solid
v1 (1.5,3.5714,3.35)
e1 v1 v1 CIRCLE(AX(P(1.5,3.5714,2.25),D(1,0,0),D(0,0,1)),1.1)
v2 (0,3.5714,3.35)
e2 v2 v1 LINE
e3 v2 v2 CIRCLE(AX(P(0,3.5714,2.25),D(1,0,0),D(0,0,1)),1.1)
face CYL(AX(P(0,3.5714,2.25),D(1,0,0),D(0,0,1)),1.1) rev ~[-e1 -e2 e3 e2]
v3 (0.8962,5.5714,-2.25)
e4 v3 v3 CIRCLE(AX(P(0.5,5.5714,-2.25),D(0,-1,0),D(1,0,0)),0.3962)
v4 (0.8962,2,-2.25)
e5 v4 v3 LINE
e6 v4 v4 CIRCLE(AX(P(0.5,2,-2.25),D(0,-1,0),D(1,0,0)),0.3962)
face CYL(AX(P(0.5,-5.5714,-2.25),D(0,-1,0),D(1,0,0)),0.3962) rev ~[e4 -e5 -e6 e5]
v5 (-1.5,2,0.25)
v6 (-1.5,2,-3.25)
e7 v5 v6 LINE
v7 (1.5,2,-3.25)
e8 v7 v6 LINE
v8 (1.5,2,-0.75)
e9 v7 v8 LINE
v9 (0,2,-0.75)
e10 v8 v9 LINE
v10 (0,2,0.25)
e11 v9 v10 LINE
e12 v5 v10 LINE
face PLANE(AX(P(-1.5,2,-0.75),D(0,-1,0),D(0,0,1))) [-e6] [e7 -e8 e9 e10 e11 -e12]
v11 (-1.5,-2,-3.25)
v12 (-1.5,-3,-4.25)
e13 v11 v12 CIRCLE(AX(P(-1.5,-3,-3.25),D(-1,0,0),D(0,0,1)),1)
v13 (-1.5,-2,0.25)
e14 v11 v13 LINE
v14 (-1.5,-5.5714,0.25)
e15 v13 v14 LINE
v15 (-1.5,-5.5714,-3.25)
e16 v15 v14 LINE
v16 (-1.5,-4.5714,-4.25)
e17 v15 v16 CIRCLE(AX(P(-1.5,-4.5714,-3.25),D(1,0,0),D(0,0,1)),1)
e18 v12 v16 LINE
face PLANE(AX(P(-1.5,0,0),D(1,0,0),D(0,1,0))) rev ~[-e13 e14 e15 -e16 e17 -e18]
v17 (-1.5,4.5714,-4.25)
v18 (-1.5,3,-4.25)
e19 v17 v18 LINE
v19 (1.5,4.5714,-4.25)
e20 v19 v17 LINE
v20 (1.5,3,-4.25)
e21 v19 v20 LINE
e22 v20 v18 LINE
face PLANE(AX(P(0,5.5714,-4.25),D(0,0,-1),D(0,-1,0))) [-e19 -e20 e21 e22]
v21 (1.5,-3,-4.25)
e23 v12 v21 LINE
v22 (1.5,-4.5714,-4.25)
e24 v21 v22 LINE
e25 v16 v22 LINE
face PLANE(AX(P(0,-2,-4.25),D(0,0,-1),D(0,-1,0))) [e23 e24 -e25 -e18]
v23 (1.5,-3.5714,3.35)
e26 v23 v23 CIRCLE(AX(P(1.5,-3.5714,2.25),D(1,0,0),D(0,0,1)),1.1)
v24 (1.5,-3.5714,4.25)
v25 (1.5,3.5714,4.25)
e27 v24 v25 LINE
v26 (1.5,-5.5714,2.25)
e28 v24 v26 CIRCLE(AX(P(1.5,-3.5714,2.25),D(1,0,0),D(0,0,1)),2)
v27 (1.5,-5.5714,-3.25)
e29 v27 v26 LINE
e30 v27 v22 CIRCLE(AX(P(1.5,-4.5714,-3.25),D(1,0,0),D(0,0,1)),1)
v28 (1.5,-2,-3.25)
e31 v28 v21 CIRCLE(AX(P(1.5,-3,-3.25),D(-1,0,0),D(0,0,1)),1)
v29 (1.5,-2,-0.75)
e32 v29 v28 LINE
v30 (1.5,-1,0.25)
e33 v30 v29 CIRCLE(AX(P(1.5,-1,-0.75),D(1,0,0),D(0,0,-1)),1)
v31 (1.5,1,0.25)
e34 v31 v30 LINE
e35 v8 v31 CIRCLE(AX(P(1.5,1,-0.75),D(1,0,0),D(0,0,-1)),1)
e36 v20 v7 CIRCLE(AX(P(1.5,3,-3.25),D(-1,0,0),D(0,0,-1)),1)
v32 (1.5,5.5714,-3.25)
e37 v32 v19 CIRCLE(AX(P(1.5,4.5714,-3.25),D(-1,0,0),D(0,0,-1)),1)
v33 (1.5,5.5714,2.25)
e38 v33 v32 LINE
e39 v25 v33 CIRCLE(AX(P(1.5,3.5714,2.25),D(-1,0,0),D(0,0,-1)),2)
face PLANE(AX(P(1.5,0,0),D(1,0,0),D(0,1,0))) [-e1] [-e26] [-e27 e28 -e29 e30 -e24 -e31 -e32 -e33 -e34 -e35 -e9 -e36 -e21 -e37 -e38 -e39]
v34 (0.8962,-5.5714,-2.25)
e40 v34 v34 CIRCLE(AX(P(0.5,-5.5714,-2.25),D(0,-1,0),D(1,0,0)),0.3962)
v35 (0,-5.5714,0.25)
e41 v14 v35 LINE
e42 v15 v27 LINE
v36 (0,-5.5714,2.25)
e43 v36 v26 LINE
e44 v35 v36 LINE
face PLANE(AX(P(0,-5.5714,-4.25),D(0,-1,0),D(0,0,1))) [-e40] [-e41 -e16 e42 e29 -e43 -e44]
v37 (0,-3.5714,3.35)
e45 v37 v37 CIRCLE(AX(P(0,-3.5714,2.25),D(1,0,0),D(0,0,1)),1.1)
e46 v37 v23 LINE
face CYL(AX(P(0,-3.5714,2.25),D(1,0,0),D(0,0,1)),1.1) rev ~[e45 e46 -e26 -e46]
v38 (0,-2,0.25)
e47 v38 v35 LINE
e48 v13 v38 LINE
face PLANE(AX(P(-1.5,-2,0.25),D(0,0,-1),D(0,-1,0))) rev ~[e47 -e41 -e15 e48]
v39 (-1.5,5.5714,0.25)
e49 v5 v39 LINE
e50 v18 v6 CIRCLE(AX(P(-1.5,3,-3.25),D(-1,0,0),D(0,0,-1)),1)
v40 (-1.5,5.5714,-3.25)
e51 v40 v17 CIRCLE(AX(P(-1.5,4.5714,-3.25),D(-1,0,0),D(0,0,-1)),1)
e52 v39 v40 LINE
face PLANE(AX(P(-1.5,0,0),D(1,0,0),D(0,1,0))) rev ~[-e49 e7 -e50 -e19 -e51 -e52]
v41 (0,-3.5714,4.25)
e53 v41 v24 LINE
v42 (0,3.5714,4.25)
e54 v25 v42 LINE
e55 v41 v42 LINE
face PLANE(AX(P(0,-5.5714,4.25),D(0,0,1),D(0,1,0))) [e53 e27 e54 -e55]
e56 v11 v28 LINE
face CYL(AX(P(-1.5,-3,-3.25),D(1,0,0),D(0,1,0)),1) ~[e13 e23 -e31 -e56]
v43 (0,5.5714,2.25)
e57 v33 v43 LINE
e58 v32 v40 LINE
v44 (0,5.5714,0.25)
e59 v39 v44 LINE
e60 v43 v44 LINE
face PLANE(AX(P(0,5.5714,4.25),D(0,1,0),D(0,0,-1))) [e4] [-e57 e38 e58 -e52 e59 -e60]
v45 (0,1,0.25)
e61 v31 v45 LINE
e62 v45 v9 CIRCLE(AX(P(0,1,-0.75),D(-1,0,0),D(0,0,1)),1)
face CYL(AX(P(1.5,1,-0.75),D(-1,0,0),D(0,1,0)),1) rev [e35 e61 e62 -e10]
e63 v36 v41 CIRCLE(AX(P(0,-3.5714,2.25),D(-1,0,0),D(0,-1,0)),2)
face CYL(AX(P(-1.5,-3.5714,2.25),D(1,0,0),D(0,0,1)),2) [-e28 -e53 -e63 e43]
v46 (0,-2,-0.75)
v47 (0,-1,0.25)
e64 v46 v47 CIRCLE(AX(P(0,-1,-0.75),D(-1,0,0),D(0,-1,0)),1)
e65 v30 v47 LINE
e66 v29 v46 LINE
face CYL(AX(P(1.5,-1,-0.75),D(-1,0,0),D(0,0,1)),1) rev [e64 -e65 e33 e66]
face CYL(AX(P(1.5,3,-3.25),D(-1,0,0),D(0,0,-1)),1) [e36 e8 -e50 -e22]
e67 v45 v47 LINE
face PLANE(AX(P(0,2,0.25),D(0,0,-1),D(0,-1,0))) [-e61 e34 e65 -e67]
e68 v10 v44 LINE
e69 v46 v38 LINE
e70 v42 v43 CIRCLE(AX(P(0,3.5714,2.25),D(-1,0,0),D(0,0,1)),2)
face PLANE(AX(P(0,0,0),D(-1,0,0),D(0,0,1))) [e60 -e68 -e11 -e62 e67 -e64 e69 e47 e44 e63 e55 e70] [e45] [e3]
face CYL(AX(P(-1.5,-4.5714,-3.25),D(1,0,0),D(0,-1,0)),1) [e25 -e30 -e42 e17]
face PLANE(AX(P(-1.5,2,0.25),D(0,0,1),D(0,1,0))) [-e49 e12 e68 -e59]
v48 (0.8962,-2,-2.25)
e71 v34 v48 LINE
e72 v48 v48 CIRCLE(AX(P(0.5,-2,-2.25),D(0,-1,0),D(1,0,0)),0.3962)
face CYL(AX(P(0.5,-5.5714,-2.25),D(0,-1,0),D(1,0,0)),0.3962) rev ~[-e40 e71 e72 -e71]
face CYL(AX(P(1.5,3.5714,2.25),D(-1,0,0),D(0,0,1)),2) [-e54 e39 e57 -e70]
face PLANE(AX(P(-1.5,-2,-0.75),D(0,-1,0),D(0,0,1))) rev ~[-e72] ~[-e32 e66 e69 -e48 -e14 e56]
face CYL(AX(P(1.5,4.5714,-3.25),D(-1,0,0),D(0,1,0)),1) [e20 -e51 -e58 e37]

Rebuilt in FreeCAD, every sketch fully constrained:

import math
import FreeCAD as App
import Part
import Sketcher

V = App.Vector
Q = App.Units.Quantity


def edges_at(feature, points):
    """Names of the edges that pass closest to the given points."""
    edges = feature.Shape.Edges
    near = lambda p: min(range(len(edges)), key=lambda i: edges[i].distToShape(Part.Vertex(*p))[0])
    return sorted({f"Edge{near(p) + 1}" for p in points})


def add_polygon(sketch, points):
    """Adds a closed chain of lines whose ends are joined by coincident constraints."""
    first, n = sketch.GeometryCount, len(points)
    for a, b in zip(points, points[1:] + points[:1]):
        sketch.addGeometry(Part.LineSegment(App.Vector(*a, 0), App.Vector(*b, 0)), False)
    for i in range(n):
        sketch.addConstraint(Sketcher.Constraint("Coincident", first + i, 2, first + (i + 1) % n, 1))

doc = App.newDocument("Part")
body = doc.addObject("PartDesign::Body", "Body")

sketch1 = body.newObject("Sketcher::SketchObject", "Sketch")
sketch1.AttachmentSupport = (doc.getObject("YZ_Plane"), [""])
sketch1.MapMode = "FlatFace"
add_polygon(sketch1, [(5.6, 4.2), (-5.6, 4.2), (-5.6, -4.2), (-2, -4.2), (-2, 0.2), (2, 0.2), (2, -4.2), (5.6, -4.2)])
sketch1.addConstraint(Sketcher.Constraint("Horizontal", 0))
sketch1.addConstraint(Sketcher.Constraint("Vertical", 1))
sketch1.addConstraint(Sketcher.Constraint("Horizontal", 2))
sketch1.addConstraint(Sketcher.Constraint("Vertical", 3))
sketch1.addConstraint(Sketcher.Constraint("Horizontal", 4))
sketch1.addConstraint(Sketcher.Constraint("Vertical", 5))
sketch1.addConstraint(Sketcher.Constraint("Horizontal", 6))
sketch1.addConstraint(Sketcher.Constraint("Vertical", 7))
sketch1.addConstraint(Sketcher.Constraint("Symmetric", 0, 2, 6, 2, -1, 1))
sketch1.addConstraint(Sketcher.Constraint("Symmetric", 2, 2, 5, 2, -2))
sketch1.addConstraint(Sketcher.Constraint("DistanceX", 4, 1, 4, 2, Q("4 mm")))
sketch1.addConstraint(Sketcher.Constraint("DistanceY", 3, 1, 3, 2, Q("4.5 mm")))
sketch1.addConstraint(Sketcher.Constraint("DistanceY", 3, 2, 0, 2, Q("4 mm")))
sketch1.addConstraint(Sketcher.Constraint("DistanceX", 0, 2, 0, 1, Q("11.1428 mm")))
pad1 = body.newObject("PartDesign::Pad", "Pad")
pad1.Profile = sketch1
pad1.Length = 3
pad1.Midplane = True

sketch2 = body.newObject("Sketcher::SketchObject", "Sketch001")
sketch2.AttachmentSupport = (doc.getObject("XZ_Plane"), [""])
sketch2.MapMode = "FlatFace"
sketch2.AttachmentOffset = App.Placement(V(0, 0, 5.5714), App.Rotation())
sketch2.addGeometry(Part.Circle(V(0.5, -2.25, 0), V(0, 0, 1), 0.4), False)
sketch2.addConstraint(Sketcher.Constraint("Diameter", 0, Q("0.7924 mm")))
sketch2.addConstraint(Sketcher.Constraint("DistanceX", -1, 1, 0, 3, Q("0.5 mm")))
sketch2.addConstraint(Sketcher.Constraint("DistanceY", 0, 3, -1, 1, Q("2.25 mm")))
pocket1 = body.newObject("PartDesign::Pocket", "Pocket")
pocket1.Profile = sketch2
pocket1.Type = "ThroughAll"
doc.recompute()

fillet = body.newObject("PartDesign::Fillet", "Fillet")
fillet.Base = (pocket1, edges_at(pocket1, [
    (0, 2, 0.25),
    (0, -2, 0.25),
    (0, 2, -4.25),
    (0, -2, -4.25),
    (0, 5.571, -4.25),
    (0, -5.571, -4.25),
]))
fillet.Radius = 1
doc.recompute()

fillet2 = body.newObject("PartDesign::Fillet", "Fillet001")
fillet2.Base = (fillet, edges_at(fillet, [(0, 5.571, 4.25), (0, -5.571, 4.25)]))
fillet2.Radius = 2

sketch3 = body.newObject("Sketcher::SketchObject", "Sketch002")
sketch3.AttachmentSupport = (doc.getObject("YZ_Plane"), [""])
sketch3.MapMode = "FlatFace"
sketch3.AttachmentOffset = App.Placement(V(0, 0, -1.5), App.Rotation())
sketch3.addGeometry(Part.ArcOfCircle(Part.Circle(V(-1, -0.8, 0), V(0, 0, 1), 1), math.radians(90), math.radians(180)), False)
sketch3.addGeometry(Part.LineSegment(V(-2, -0.8, 0), V(-2, 0.2, 0)), False)
sketch3.addGeometry(Part.LineSegment(V(-2, 0.2, 0), V(-5.6, 0.2, 0)), False)
sketch3.addGeometry(Part.LineSegment(V(-5.6, 0.2, 0), V(-5.6, 2.2, 0)), False)
sketch3.addGeometry(Part.ArcOfCircle(Part.Circle(V(-3.6, 2.2, 0), V(0, 0, 1), 2), math.radians(90), math.radians(180)), False)
sketch3.addGeometry(Part.LineSegment(V(-3.6, 4.2, 0), V(3.6, 4.2, 0)), False)
sketch3.addGeometry(Part.ArcOfCircle(Part.Circle(V(3.6, 2.2, 0), V(0, 0, 1), 2), math.radians(0), math.radians(90)), False)
sketch3.addGeometry(Part.LineSegment(V(5.6, 2.2, 0), V(5.6, 0.2, 0)), False)
sketch3.addGeometry(Part.LineSegment(V(5.6, 0.2, 0), V(2, 0.2, 0)), False)
sketch3.addGeometry(Part.LineSegment(V(2, 0.2, 0), V(2, -0.8, 0)), False)
sketch3.addGeometry(Part.ArcOfCircle(Part.Circle(V(1, -0.8, 0), V(0, 0, 1), 1), math.radians(0), math.radians(90)), False)
sketch3.addGeometry(Part.LineSegment(V(1, 0.2, 0), V(-1, 0.2, 0)), False)
sketch3.addConstraint(Sketcher.Constraint("Tangent", 0, 2, 1, 1))
sketch3.addConstraint(Sketcher.Constraint("Coincident", 1, 2, 2, 1))
sketch3.addConstraint(Sketcher.Constraint("Coincident", 2, 2, 3, 1))
sketch3.addConstraint(Sketcher.Constraint("Tangent", 3, 2, 4, 2))
sketch3.addConstraint(Sketcher.Constraint("Tangent", 4, 1, 5, 1))
sketch3.addConstraint(Sketcher.Constraint("Tangent", 5, 2, 6, 2))
sketch3.addConstraint(Sketcher.Constraint("Tangent", 6, 1, 7, 1))
sketch3.addConstraint(Sketcher.Constraint("Coincident", 7, 2, 8, 1))
sketch3.addConstraint(Sketcher.Constraint("Coincident", 8, 2, 9, 1))
sketch3.addConstraint(Sketcher.Constraint("Tangent", 9, 2, 10, 1))
sketch3.addConstraint(Sketcher.Constraint("Tangent", 10, 2, 11, 1))
sketch3.addConstraint(Sketcher.Constraint("Tangent", 11, 2, 0, 1))
sketch3.addConstraint(Sketcher.Constraint("Vertical", 1))
sketch3.addConstraint(Sketcher.Constraint("Horizontal", 2))
sketch3.addConstraint(Sketcher.Constraint("Vertical", 3))
sketch3.addConstraint(Sketcher.Constraint("Horizontal", 5))
sketch3.addConstraint(Sketcher.Constraint("Vertical", 7))
sketch3.addConstraint(Sketcher.Constraint("Horizontal", 8))
sketch3.addConstraint(Sketcher.Constraint("Vertical", 9))
sketch3.addConstraint(Sketcher.Constraint("Horizontal", 11))
sketch3.addConstraint(Sketcher.Constraint("Equal", 4, 6))
sketch3.addConstraint(Sketcher.Constraint("Equal", 0, 10))
sketch3.addConstraint(Sketcher.Constraint("Symmetric", 2, 2, 7, 2, -2))
sketch3.addConstraint(Sketcher.Constraint("Horizontal", 8, 2, 10, 2))
sketch3.addConstraint(Sketcher.Constraint("Equal", 2, 8))
sketch3.addConstraint(Sketcher.Constraint("Equal", 11, 3))
sketch3.addConstraint(Sketcher.Constraint("Radius", 0, Q("1 mm")))
sketch3.addConstraint(Sketcher.Constraint("Radius", 4, Q("2 mm")))
sketch3.addConstraint(Sketcher.Constraint("DistanceX", 11, 2, 11, 1, Q("2 mm")))
sketch3.addConstraint(Sketcher.Constraint("DistanceY", 0, 3, -1, 1, Q("0.75 mm")))
sketch3.addConstraint(Sketcher.Constraint("DistanceX", 2, 2, 2, 1, Q("3.5714 mm")))
pocket2 = body.newObject("PartDesign::Pocket", "Pocket001")
pocket2.Profile = sketch3
pocket2.Length = 1.5
pocket2.Reversed = True

sketch4 = body.newObject("Sketcher::SketchObject", "Sketch003")
sketch4.AttachmentSupport = (doc.getObject("YZ_Plane"), [""])
sketch4.MapMode = "FlatFace"
sketch4.addGeometry(Part.Circle(V(-3.6, 2.2, 0), V(0, 0, 1), 1.1), False)
sketch4.addGeometry(Part.Circle(V(3.6, 2.2, 0), V(0, 0, 1), 1.1), False)
sketch4.addConstraint(Sketcher.Constraint("Equal", 0, 1))
sketch4.addConstraint(Sketcher.Constraint("Symmetric", 0, 3, 1, 3, -2))
sketch4.addConstraint(Sketcher.Constraint("Diameter", 0, Q("2.2 mm")))
sketch4.addConstraint(Sketcher.Constraint("DistanceY", -1, 1, 0, 3, Q("2.25 mm")))
sketch4.addConstraint(Sketcher.Constraint("DistanceX", 0, 3, -1, 1, Q("3.5714 mm")))
doc.recompute()
hole = body.newObject("PartDesign::Hole", "Hole")
hole.Profile = sketch4
hole.ThreadType = "None"
hole.Diameter = 2.2
hole.DepthType = "ThroughAll"
hole.Reversed = True

doc.recompute()
